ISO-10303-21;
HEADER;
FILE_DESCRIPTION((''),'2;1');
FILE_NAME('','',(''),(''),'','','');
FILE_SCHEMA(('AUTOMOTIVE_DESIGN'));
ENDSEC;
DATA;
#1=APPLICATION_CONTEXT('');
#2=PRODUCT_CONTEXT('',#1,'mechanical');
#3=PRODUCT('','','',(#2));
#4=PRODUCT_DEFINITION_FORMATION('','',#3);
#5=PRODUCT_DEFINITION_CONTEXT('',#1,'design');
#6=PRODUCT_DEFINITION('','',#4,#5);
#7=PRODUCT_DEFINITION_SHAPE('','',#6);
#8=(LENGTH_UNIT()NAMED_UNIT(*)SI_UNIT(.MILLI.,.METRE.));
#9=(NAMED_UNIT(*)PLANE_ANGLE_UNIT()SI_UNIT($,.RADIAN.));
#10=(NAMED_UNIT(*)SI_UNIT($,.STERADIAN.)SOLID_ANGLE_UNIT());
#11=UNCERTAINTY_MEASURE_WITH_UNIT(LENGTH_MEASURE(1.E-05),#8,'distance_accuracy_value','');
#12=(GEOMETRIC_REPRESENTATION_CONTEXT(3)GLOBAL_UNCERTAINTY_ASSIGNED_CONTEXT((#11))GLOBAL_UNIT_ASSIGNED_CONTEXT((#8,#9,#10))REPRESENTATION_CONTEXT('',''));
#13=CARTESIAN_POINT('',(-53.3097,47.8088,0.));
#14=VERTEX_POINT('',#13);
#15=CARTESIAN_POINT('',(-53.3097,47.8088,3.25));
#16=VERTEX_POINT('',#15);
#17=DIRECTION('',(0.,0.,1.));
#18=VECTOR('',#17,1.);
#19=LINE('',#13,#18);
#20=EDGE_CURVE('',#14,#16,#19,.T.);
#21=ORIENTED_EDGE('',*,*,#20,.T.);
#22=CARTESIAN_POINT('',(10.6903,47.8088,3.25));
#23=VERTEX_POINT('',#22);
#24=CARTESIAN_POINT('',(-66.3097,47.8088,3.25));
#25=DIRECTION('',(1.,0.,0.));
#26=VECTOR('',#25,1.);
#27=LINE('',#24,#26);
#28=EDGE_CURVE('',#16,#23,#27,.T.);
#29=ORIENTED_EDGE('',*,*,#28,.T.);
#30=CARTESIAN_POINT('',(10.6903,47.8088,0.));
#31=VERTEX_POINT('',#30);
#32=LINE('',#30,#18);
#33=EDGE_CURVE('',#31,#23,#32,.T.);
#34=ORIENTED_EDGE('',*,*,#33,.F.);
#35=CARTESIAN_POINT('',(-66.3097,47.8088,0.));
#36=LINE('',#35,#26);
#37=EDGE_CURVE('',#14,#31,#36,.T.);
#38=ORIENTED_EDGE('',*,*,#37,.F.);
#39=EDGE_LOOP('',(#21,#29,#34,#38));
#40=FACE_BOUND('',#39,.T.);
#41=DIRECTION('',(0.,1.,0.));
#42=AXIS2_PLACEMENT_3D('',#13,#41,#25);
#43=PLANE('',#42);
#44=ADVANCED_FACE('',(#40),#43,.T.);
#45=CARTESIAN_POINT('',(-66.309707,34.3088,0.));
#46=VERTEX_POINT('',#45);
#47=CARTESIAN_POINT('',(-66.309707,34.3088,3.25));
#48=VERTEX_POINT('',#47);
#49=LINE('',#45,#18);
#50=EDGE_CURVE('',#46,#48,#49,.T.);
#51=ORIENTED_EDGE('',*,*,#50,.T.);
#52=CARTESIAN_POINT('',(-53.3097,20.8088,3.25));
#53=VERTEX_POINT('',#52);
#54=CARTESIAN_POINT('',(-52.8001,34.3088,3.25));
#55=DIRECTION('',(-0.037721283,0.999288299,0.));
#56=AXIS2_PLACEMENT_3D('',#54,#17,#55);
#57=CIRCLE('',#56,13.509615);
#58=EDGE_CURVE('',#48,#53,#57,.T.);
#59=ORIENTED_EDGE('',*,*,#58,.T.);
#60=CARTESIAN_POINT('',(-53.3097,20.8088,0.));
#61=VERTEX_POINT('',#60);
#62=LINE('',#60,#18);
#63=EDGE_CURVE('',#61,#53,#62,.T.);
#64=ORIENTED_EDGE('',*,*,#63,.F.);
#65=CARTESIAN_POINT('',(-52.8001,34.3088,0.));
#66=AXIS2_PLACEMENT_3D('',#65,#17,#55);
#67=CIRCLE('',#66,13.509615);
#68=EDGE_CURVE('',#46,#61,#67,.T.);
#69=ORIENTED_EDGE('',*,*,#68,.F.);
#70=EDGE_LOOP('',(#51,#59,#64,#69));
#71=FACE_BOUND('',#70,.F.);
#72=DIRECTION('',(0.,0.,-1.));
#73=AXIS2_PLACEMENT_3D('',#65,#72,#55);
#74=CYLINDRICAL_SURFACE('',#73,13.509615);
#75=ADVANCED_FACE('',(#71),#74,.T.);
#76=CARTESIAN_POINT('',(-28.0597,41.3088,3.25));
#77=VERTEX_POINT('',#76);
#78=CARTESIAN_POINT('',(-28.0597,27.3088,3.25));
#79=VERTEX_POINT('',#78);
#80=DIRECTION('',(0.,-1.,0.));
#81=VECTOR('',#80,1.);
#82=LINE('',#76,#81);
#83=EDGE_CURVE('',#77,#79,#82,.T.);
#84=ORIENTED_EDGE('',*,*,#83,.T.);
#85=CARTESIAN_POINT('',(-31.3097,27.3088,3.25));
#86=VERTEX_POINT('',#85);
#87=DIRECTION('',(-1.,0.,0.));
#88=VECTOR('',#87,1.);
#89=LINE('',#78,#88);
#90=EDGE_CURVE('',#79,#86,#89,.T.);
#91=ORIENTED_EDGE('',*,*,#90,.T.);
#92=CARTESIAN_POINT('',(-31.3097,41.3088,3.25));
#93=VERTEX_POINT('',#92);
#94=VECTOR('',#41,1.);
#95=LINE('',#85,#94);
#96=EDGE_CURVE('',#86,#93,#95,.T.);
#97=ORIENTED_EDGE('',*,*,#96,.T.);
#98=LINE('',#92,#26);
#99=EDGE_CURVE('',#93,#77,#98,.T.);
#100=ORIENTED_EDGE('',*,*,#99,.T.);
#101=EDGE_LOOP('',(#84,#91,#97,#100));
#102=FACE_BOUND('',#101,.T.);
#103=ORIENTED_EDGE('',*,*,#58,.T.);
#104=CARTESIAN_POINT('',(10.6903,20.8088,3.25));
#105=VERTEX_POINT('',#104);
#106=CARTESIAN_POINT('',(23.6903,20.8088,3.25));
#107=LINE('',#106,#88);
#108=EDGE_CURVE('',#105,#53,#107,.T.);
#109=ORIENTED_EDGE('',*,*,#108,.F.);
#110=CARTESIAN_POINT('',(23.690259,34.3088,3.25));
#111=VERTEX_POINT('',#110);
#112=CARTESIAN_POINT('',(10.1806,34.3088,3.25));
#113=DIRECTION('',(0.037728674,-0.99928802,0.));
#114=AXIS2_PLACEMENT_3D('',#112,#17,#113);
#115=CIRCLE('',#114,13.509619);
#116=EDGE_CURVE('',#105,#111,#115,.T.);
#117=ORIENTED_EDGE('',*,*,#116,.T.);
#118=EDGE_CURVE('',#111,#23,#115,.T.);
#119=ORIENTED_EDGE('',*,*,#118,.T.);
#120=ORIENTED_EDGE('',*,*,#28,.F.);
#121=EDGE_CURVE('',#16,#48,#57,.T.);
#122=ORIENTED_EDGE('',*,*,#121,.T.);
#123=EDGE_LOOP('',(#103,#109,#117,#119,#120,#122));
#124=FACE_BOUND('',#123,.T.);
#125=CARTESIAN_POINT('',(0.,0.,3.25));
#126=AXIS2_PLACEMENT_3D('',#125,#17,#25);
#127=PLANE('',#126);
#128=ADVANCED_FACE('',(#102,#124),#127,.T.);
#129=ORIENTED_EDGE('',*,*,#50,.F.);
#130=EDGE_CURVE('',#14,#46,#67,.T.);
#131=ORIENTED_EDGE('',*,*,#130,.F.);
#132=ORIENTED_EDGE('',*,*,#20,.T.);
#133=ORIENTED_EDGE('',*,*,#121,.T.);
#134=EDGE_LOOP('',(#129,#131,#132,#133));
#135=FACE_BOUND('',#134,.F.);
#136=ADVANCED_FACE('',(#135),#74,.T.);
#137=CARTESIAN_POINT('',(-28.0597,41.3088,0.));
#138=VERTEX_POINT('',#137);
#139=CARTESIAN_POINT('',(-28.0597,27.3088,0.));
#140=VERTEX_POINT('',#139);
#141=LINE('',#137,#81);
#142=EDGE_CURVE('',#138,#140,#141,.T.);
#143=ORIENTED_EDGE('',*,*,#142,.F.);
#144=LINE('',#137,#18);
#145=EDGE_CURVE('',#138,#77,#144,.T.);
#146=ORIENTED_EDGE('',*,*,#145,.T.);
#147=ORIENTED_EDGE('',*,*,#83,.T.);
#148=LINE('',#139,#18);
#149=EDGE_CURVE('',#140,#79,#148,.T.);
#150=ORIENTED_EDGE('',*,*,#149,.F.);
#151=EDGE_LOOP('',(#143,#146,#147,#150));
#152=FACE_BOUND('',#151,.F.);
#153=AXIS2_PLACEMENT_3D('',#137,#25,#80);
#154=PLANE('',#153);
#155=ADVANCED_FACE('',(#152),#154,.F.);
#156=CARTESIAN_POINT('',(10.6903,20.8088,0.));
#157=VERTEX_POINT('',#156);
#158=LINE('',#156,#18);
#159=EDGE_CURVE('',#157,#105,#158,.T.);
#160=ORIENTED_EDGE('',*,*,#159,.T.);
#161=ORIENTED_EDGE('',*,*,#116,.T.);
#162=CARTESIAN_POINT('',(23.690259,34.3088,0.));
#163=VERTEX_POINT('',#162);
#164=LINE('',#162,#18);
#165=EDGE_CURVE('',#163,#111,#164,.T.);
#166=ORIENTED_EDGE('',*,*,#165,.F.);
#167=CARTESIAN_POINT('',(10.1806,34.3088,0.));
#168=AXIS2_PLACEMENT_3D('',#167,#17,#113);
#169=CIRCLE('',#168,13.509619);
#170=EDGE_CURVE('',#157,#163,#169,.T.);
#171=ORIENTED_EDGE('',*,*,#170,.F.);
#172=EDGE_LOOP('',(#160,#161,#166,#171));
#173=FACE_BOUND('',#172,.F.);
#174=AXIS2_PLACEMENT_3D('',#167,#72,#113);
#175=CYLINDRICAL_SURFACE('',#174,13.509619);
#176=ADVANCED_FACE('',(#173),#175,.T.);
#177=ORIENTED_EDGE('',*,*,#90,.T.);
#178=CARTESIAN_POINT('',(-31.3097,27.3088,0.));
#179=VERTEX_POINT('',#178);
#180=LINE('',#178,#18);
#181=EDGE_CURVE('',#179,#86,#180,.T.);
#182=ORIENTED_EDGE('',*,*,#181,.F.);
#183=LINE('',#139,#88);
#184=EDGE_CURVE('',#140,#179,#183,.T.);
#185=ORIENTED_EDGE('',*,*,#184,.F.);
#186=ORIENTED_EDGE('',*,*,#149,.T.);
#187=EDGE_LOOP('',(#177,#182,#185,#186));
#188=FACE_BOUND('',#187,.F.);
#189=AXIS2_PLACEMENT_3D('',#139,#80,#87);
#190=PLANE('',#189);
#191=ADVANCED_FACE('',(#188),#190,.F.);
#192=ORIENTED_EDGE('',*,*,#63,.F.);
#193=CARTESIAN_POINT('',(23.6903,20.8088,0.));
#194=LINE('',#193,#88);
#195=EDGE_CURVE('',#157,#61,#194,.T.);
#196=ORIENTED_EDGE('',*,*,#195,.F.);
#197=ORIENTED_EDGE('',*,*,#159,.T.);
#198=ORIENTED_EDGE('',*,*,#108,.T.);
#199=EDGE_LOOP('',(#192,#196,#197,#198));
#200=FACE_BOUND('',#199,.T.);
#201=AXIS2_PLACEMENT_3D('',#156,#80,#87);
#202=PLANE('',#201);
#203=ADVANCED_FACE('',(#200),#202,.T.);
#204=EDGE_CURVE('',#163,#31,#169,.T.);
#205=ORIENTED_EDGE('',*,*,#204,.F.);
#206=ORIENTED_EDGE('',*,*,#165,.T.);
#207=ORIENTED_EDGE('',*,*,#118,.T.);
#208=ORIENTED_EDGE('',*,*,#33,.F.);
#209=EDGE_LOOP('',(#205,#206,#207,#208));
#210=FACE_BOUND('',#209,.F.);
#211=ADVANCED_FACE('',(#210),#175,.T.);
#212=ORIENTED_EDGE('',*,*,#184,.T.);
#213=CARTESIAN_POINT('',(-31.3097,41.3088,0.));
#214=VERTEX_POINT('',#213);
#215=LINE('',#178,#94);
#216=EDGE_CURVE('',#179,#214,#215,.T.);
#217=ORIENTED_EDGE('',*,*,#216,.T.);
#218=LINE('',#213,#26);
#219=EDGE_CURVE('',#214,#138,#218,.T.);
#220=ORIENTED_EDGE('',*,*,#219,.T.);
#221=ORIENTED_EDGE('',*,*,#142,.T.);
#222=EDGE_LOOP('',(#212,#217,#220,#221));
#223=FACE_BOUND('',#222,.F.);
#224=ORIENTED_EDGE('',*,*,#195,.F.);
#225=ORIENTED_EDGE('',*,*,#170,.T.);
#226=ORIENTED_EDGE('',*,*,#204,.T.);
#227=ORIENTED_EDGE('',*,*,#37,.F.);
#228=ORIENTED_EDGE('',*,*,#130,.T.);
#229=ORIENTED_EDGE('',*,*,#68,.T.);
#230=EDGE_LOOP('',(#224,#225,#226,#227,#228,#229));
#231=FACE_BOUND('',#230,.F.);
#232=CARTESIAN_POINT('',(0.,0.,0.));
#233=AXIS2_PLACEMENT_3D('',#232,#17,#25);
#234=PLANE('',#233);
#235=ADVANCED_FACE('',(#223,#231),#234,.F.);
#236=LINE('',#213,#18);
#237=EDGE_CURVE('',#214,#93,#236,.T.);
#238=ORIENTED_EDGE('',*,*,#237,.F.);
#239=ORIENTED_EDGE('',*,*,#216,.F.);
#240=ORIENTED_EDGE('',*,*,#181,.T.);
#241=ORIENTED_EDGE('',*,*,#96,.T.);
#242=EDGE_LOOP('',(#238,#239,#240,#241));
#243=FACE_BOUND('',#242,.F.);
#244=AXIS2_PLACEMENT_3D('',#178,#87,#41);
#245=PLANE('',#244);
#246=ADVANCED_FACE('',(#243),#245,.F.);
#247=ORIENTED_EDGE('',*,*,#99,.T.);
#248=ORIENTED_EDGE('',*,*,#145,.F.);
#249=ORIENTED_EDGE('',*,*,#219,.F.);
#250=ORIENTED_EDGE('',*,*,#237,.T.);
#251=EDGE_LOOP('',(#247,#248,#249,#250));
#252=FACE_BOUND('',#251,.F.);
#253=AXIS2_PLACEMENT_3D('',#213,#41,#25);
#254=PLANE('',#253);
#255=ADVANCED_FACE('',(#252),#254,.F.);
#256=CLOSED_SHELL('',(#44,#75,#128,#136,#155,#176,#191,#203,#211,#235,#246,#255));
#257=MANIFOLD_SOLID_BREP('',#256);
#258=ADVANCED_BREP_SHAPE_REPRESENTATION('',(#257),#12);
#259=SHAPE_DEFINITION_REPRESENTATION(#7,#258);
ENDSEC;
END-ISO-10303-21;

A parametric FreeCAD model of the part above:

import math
import FreeCAD as App
import Part
import Sketcher

V = App.Vector


def add_polygon(sketch, points):
    """Adds a closed chain of lines whose ends are joined by coincident constraints."""
    first, n = sketch.GeometryCount, len(points)
    for a, b in zip(points, points[1:] + points[:1]):
        sketch.addGeometry(Part.LineSegment(App.Vector(*a, 0), App.Vector(*b, 0)), False)
    for i in range(n):
        sketch.addConstraint(Sketcher.Constraint("Coincident", first + i, 2, first + (i + 1) % n, 1))

doc = App.newDocument("Part")
body = doc.addObject("PartDesign::Body", "Body")

# Sketch on XY plane
sketch1 = body.newObject("Sketcher::SketchObject", "Sketch")
sketch1.AttachmentSupport = (doc.getObject("XY_Plane"), [""])
sketch1.MapMode = "FlatFace"
sketch1.addGeometry(Part.LineSegment(V(10.7, 47.8, 0), V(-53.3, 47.8, 0)), False)  # 0
sketch1.addGeometry(Part.ArcOfCircle(Part.Circle(V(-52.8, 34.3, 0), V(0, 0, 1), 13.5), math.radians(92), math.radians(268)), False)  # 1
sketch1.addGeometry(Part.LineSegment(V(-53.3, 20.8, 0), V(10.7, 20.8, 0)), False)  # 2
sketch1.addGeometry(Part.ArcOfCircle(Part.Circle(V(10.2, 34.3, 0), V(0, 0, 1), 13.5), math.radians(-88), math.radians(88)), False)  # 3
add_polygon(sketch1, [(-31.3, 27.3), (-31.3, 41.3), (-28.1, 41.3), (-28.1, 27.3)])  # lines 4-7
sketch1.addConstraint([
    Sketcher.Constraint("Coincident", 0, 2, 1, 1),
    Sketcher.Constraint("Coincident", 1, 2, 2, 1),
    Sketcher.Constraint("Coincident", 2, 2, 3, 1),
    Sketcher.Constraint("Coincident", 3, 2, 0, 1),
    Sketcher.Constraint("Horizontal", 0),
    Sketcher.Constraint("Horizontal", 2),
    Sketcher.Constraint("Vertical", 4),
    Sketcher.Constraint("Horizontal", 5),
    Sketcher.Constraint("Vertical", 6),
    Sketcher.Constraint("Horizontal", 7),
    Sketcher.Constraint("Equal", 1, 3),
    Sketcher.Constraint("Horizontal", 1, 3, 3, 3),
    Sketcher.Constraint("Vertical", 0, 2, 1, 2),
    Sketcher.Constraint("DistanceY", 4, 1, 4, 2, 14.0),
    Sketcher.Constraint("DistanceY", 1, 2, 0, 2, 27.0),
    Sketcher.Constraint("DistanceX", 5, 1, 5, 2, 3.25),
    Sketcher.Constraint("DistanceX", 0, 2, 0, 1, 64.0),
    Sketcher.Constraint("DistanceY", 1, 3, 4, 2, 7.0),
    Sketcher.Constraint("DistanceX", 0, 2, 4, 2, 22.0),
    Sketcher.Constraint("DistanceX", 1, 3, -1, 1, 52.8),
    Sketcher.Constraint("Radius", 1, 13.5096),
    Sketcher.Constraint("DistanceY", -1, 1, 1, 3, 34.3088),
])
pad1 = body.newObject("PartDesign::Pad", "Pad")
pad1.Profile = sketch1
pad1.Length = 3.25

doc.recompute()
